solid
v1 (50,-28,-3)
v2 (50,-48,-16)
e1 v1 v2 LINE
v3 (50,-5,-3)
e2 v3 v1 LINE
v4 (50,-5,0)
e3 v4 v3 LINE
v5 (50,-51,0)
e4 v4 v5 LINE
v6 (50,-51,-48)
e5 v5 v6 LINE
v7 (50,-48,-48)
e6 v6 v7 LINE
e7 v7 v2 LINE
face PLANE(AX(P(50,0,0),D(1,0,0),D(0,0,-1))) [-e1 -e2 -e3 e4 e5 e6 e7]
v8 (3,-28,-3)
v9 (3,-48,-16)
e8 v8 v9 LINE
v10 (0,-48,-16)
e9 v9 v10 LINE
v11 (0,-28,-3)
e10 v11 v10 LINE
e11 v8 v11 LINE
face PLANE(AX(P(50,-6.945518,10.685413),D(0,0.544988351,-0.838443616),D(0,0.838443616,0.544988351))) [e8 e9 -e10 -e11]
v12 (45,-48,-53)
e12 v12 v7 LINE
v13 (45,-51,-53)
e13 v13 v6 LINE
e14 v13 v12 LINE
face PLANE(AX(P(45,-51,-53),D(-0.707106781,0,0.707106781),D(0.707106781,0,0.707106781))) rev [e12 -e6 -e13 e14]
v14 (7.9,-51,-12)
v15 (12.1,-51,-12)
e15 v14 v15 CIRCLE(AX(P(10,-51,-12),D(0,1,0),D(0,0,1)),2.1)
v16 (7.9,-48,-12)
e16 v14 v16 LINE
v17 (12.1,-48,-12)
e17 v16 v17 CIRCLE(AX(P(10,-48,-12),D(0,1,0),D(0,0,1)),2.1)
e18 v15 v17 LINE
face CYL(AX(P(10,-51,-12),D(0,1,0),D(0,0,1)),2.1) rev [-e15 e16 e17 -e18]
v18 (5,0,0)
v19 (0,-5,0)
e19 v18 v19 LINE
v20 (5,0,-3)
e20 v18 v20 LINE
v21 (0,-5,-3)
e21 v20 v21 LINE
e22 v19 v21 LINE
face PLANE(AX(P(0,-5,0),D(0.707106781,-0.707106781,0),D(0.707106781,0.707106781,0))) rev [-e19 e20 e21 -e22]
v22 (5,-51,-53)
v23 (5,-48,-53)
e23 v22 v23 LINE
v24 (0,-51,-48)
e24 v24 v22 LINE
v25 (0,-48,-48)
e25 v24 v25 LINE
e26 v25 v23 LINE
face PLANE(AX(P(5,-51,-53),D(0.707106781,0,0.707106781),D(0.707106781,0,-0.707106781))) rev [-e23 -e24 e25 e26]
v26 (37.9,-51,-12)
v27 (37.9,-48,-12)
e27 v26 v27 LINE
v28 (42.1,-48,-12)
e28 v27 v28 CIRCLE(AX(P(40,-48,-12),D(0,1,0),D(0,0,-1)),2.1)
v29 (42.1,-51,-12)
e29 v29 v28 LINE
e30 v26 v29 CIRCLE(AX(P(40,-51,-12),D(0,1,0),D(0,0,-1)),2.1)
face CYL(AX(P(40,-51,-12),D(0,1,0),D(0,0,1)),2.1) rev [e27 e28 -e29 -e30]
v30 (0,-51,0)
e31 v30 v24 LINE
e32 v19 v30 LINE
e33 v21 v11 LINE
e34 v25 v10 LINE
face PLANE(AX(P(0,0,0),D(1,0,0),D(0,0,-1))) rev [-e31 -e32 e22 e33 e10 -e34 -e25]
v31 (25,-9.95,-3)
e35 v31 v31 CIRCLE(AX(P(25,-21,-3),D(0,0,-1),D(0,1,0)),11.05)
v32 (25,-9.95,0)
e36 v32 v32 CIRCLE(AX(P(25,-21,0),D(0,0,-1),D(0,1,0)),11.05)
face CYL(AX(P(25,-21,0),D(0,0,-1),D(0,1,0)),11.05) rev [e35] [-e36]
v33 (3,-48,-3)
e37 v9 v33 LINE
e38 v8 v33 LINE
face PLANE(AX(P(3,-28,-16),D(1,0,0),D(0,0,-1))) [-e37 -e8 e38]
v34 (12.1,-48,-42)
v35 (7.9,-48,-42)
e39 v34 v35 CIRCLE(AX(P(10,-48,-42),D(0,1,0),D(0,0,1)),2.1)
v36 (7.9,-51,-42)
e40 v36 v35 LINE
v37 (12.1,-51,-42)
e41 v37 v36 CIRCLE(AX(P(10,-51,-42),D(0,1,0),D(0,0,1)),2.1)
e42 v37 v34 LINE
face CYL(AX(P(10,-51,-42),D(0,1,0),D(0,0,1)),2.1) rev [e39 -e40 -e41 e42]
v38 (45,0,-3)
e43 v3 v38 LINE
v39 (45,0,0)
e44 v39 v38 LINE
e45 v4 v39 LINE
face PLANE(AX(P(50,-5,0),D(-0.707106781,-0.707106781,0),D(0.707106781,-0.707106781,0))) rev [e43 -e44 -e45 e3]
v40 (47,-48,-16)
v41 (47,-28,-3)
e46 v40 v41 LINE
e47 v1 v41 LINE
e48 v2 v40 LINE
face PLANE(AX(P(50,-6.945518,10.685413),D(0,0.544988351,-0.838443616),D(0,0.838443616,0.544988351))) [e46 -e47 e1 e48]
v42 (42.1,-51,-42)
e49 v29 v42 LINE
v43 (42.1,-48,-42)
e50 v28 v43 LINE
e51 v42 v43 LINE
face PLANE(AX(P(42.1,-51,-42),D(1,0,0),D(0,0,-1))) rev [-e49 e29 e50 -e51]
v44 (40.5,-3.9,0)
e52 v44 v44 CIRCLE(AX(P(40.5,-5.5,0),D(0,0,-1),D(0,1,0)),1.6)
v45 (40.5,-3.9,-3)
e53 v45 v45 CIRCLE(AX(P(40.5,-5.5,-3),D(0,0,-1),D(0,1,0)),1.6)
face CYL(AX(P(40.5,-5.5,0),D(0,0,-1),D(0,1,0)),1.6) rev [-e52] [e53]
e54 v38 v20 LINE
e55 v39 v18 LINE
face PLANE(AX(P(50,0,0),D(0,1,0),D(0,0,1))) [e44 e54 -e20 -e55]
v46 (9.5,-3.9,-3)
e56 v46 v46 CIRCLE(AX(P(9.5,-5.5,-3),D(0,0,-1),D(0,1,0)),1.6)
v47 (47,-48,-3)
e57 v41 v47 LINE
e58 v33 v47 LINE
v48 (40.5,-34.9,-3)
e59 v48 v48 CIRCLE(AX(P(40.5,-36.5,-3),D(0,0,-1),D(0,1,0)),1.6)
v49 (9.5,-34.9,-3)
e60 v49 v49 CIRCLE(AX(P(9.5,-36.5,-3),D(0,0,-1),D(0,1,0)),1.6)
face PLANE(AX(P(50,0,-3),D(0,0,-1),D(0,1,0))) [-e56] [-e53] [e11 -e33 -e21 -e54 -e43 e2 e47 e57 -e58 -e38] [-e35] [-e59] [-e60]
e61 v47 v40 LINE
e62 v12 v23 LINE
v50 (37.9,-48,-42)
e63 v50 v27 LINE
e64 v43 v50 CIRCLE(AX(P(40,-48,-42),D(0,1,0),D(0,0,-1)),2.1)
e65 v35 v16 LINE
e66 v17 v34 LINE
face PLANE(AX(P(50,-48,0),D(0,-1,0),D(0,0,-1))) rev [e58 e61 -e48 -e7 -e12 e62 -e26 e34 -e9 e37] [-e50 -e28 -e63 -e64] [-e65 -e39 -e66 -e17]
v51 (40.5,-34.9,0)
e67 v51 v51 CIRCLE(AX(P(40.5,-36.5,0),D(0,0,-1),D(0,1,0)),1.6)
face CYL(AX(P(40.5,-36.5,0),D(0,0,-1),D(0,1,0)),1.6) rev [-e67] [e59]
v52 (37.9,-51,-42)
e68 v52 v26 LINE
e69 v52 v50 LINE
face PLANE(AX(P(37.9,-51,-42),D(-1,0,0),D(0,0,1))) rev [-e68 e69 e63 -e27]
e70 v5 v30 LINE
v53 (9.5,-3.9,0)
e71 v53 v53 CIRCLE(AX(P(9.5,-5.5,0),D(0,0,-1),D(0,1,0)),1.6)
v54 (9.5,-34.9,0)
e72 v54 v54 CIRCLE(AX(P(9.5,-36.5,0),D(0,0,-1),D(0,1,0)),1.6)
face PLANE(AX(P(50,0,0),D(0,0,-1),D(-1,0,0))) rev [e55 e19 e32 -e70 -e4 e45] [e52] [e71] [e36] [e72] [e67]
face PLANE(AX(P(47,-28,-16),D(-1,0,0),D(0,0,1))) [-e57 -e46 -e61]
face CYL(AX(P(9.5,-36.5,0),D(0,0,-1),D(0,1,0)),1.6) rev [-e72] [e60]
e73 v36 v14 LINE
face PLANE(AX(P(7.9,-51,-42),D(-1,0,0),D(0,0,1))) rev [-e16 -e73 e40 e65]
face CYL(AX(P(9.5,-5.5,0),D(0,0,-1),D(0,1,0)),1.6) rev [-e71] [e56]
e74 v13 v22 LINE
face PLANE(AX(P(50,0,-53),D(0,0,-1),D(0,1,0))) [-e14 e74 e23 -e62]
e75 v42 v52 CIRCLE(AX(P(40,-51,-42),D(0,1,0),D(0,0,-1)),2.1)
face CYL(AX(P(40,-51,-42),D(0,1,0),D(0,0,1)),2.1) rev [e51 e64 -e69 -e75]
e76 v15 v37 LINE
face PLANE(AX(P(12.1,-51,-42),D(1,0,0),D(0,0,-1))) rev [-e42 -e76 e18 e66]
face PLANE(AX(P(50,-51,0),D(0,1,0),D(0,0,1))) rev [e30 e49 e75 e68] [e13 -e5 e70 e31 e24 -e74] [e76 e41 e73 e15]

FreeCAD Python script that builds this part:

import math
import FreeCAD as App
import Part
import Sketcher


def add_polygon(sketch, points):
    """Adds a closed chain of lines whose ends are joined by coincident constraints."""
    first, n = sketch.GeometryCount, len(points)
    for a, b in zip(points, points[1:] + points[:1]):
        sketch.addGeometry(Part.LineSegment(App.Vector(*a, 0), App.Vector(*b, 0)), False)
    for i in range(n):
        sketch.addConstraint(Sketcher.Constraint("Coincident", first + i, 2, first + (i + 1) % n, 1))

doc = App.newDocument("Part")
body = doc.addObject("PartDesign::Body", "Body")

sketch1 = body.newObject("Sketcher::SketchObject", "Sketch")
sketch1.AttachmentSupport = (doc.getObject("YZ_Plane"), [""])
sketch1.MapMode = "FlatFace"
add_polygon(sketch1, [(0, -3), (0, 0), (-51, 0), (-51, -53), (-48, -53), (-48, -16), (-28, -3)])
sketch1.addConstraint(Sketcher.Constraint("Vertical", 0))
sketch1.addConstraint(Sketcher.Constraint("Horizontal", 1))
sketch1.addConstraint(Sketcher.Constraint("Vertical", 2))
sketch1.addConstraint(Sketcher.Constraint("Horizontal", 3))
sketch1.addConstraint(Sketcher.Constraint("Vertical", 4))
sketch1.addConstraint(Sketcher.Constraint("Horizontal", 6))
sketch1.addConstraint(Sketcher.Constraint("Coincident", 0, 2, -1, 1))
sketch1.addConstraint(Sketcher.Constraint("Equal", 3, 0))
sketch1.addConstraint(Sketcher.Constraint("DistanceX", 1, 2, 1, 1, 51.0))
sketch1.addConstraint(Sketcher.Constraint("DistanceX", 3, 1, 3, 2, 3.0))
sketch1.addConstraint(Sketcher.Constraint("DistanceX", 6, 1, 6, 2, 28.0))
sketch1.addConstraint(Sketcher.Constraint("DistanceY", 2, 2, 2, 1, 53.0))
sketch1.addConstraint(Sketcher.Constraint("DistanceY", 4, 1, 4, 2, 37.0))
pad1 = body.newObject("PartDesign::Pad", "Pad")
pad1.Profile = sketch1
pad1.Length = 50

sketch2 = body.newObject("Sketcher::SketchObject", "Sketch001")
sketch2.AttachmentSupport = (doc.getObject("XZ_Plane"), [""])
sketch2.MapMode = "FlatFace"
sketch2.AttachmentOffset = App.Placement(App.Vector(0, 0, 48), App.Rotation())
add_polygon(sketch2, [(3, -16), (3, -3), (47, -3), (47, -16)])
sketch2.addConstraint(Sketcher.Constraint("Vertical", 0))
sketch2.addConstraint(Sketcher.Constraint("Horizontal", 1))
sketch2.addConstraint(Sketcher.Constraint("Vertical", 2))
sketch2.addConstraint(Sketcher.Constraint("Horizontal", 3))
sketch2.addConstraint(Sketcher.Constraint("DistanceX", 1, 1, 1, 2, 44.0))
sketch2.addConstraint(Sketcher.Constraint("DistanceY", 0, 1, 0, 2, 13.0))
sketch2.addConstraint(Sketcher.Constraint("DistanceX", -1, 1, 0, 2, 3.0))
sketch2.addConstraint(Sketcher.Constraint("DistanceY", 0, 2, -1, 1, 3.0))
pocket1 = body.newObject("PartDesign::Pocket", "Pocket")
pocket1.Profile = sketch2
pocket1.Length = 20

sketch3 = body.newObject("Sketcher::SketchObject", "Sketch002")
sketch3.AttachmentSupport = (doc.getObject("XZ_Plane"), [""])
sketch3.MapMode = "FlatFace"
sketch3.AttachmentOffset = App.Placement(App.Vector(0, 0, 48), App.Rotation())
sketch3.addGeometry(Part.LineSegment(App.Vector(12.1, -12, 0), App.Vector(12.1, -42, 0)), False)
sketch3.addGeometry(Part.ArcOfCircle(Part.Circle(App.Vector(10, -42, 0), App.Vector(0, 0, 1), 2.1), math.radians(180), math.radians(360)), False)
sketch3.addGeometry(Part.LineSegment(App.Vector(7.9, -42, 0), App.Vector(7.9, -12, 0)), False)
sketch3.addGeometry(Part.ArcOfCircle(Part.Circle(App.Vector(10, -12, 0), App.Vector(0, 0, 1), 2.1), math.radians(0), math.radians(180)), False)
sketch3.addGeometry(Part.LineSegment(App.Vector(37.9, -42, 0), App.Vector(37.9, -12, 0)), False)
sketch3.addGeometry(Part.ArcOfCircle(Part.Circle(App.Vector(40, -12, 0), App.Vector(0, 0, 1), 2.1), math.radians(0), math.radians(180)), False)
sketch3.addGeometry(Part.LineSegment(App.Vector(42.1, -12, 0), App.Vector(42.1, -42, 0)), False)
sketch3.addGeometry(Part.ArcOfCircle(Part.Circle(App.Vector(40, -42, 0), App.Vector(0, 0, 1), 2.1), math.radians(180), math.radians(360)), False)
add_polygon(sketch3, [(50, -53), (45, -53), (50, -48)])
add_polygon(sketch3, [(0, -48), (5, -53), (0, -53)])
sketch3.addConstraint(Sketcher.Constraint("Tangent", 0, 2, 1, 2))
sketch3.addConstraint(Sketcher.Constraint("Tangent", 1, 1, 2, 1))
sketch3.addConstraint(Sketcher.Constraint("Tangent", 2, 2, 3, 2))
sketch3.addConstraint(Sketcher.Constraint("Tangent", 3, 1, 0, 1))
sketch3.addConstraint(Sketcher.Constraint("Tangent", 4, 2, 5, 2))
sketch3.addConstraint(Sketcher.Constraint("Tangent", 5, 1, 6, 1))
sketch3.addConstraint(Sketcher.Constraint("Tangent", 6, 2, 7, 2))
sketch3.addConstraint(Sketcher.Constraint("Tangent", 7, 1, 4, 1))
sketch3.addConstraint(Sketcher.Constraint("Vertical", 0))
sketch3.addConstraint(Sketcher.Constraint("Vertical", 2))
sketch3.addConstraint(Sketcher.Constraint("Vertical", 4))
sketch3.addConstraint(Sketcher.Constraint("Vertical", 6))
sketch3.addConstraint(Sketcher.Constraint("Horizontal", 8))
sketch3.addConstraint(Sketcher.Constraint("Vertical", 10))
sketch3.addConstraint(Sketcher.Constraint("Horizontal", 12))
sketch3.addConstraint(Sketcher.Constraint("Vertical", 13))
sketch3.addConstraint(Sketcher.Constraint("Equal", 3, 5))
sketch3.addConstraint(Sketcher.Constraint("PointOnObject", 12, 2, -2))
sketch3.addConstraint(Sketcher.Constraint("Perpendicular", 9, 11))
sketch3.addConstraint(Sketcher.Constraint("Horizontal", 3, 3, 5, 3))
sketch3.addConstraint(Sketcher.Constraint("Horizontal", 1, 3, 7, 3))
sketch3.addConstraint(Sketcher.Constraint("Horizontal", 10, 2, 11, 2))
sketch3.addConstraint(Sketcher.Constraint("Horizontal", 9, 2, 13, 2))
sketch3.addConstraint(Sketcher.Constraint("Equal", 8, 12))
sketch3.addConstraint(Sketcher.Constraint("Radius", 1, 2.1))
sketch3.addConstraint(Sketcher.Constraint("DistanceX", 8, 2, 8, 1, 5.0))
sketch3.addConstraint(Sketcher.Constraint("DistanceY", 0, 2, 0, 1, 30.0))
sketch3.addConstraint(Sketcher.Constraint("DistanceX", -1, 1, 1, 3, 10.0))
sketch3.addConstraint(Sketcher.Constraint("DistanceY", 1, 3, -1, 1, 42.0))
sketch3.addConstraint(Sketcher.Constraint("DistanceX", -1, 1, 5, 3, 40.0))
sketch3.addConstraint(Sketcher.Constraint("DistanceX", -1, 1, 8, 2, 45.0))
sketch3.addConstraint(Sketcher.Constraint("DistanceY", 8, 2, -1, 1, 53.0))
pocket2 = body.newObject("PartDesign::Pocket", "Pocket001")
pocket2.Profile = sketch3
pocket2.Type = "ThroughAll"
pocket2.Reversed = True

sketch4 = body.newObject("Sketcher::SketchObject", "Sketch003")
sketch4.AttachmentSupport = (doc.getObject("XY_Plane"), [""])
sketch4.MapMode = "FlatFace"
sketch4.AttachmentOffset = App.Placement(App.Vector(0, 0, -3), App.Rotation())
sketch4.addGeometry(Part.Circle(App.Vector(25, -21, 0), App.Vector(0, 0, 1), 11.05), False)
sketch4.addGeometry(Part.Circle(App.Vector(40.5, -5.5, 0), App.Vector(0, 0, 1), 1.6), False)
sketch4.addGeometry(Part.Circle(App.Vector(9.5, -5.5, 0), App.Vector(0, 0, 1), 1.6), False)
sketch4.addGeometry(Part.Circle(App.Vector(9.5, -36.5, 0), App.Vector(0, 0, 1), 1.6), False)
sketch4.addGeometry(Part.Circle(App.Vector(40.5, -36.5, 0), App.Vector(0, 0, 1), 1.6), False)
add_polygon(sketch4, [(50, 0), (50, -5), (45, 0)])
add_polygon(sketch4, [(5, 0), (0, -5), (0, 0)])
sketch4.addConstraint(Sketcher.Constraint("Vertical", 5))
sketch4.addConstraint(Sketcher.Constraint("Horizontal", 7))
sketch4.addConstraint(Sketcher.Constraint("Vertical", 9))
sketch4.addConstraint(Sketcher.Constraint("Horizontal", 10))
sketch4.addConstraint(Sketcher.Constraint("Coincident", 9, 2, -1, 1))
sketch4.addConstraint(Sketcher.Constraint("Equal", 1, 2))
sketch4.addConstraint(Sketcher.Constraint("Equal", 2, 3))
sketch4.addConstraint(Sketcher.Constraint("Equal", 3, 4))
sketch4.addConstraint(Sketcher.Constraint("PointOnObject", 6, 2, -1))
sketch4.addConstraint(Sketcher.Constraint("Perpendicular", 6, 8))
sketch4.addConstraint(Sketcher.Constraint("Horizontal", 1, 3, 2, 3))
sketch4.addConstraint(Sketcher.Constraint("Horizontal", 3, 3, 4, 3))
sketch4.addConstraint(Sketcher.Constraint("Horizontal", 5, 2, 8, 2))
sketch4.addConstraint(Sketcher.Constraint("Vertical", 2, 3, 3, 3))
sketch4.addConstraint(Sketcher.Constraint("Vertical", 1, 3, 4, 3))
sketch4.addConstraint(Sketcher.Constraint("Equal", 7, 10))
sketch4.addConstraint(Sketcher.Constraint("Diameter", 0, 22.1))
sketch4.addConstraint(Sketcher.Constraint("Diameter", 1, 3.2))
sketch4.addConstraint(Sketcher.Constraint("DistanceX", 7, 1, 7, 2, 5.0))
sketch4.addConstraint(Sketcher.Constraint("DistanceX", -1, 1, 0, 3, 25.0))
sketch4.addConstraint(Sketcher.Constraint("DistanceY", 0, 3, -1, 1, 21.0))
sketch4.addConstraint(Sketcher.Constraint("DistanceX", -1, 1, 5, 2, 50.0))
sketch4.addConstraint(Sketcher.Constraint("DistanceX", 2, 3, 1, 3, 31.0))
sketch4.addConstraint(Sketcher.Constraint("DistanceY", 3, 3, 2, 3, 31.0))
sketch4.addConstraint(Sketcher.Constraint("DistanceX", -1, 1, 1, 3, 40.5))
sketch4.addConstraint(Sketcher.Constraint("DistanceY", 1, 3, -1, 1, 5.5))
pocket3 = body.newObject("PartDesign::Pocket", "Pocket002")
pocket3.Profile = sketch4
pocket3.Type = "ThroughAll"
pocket3.Reversed = True

doc.recompute()
